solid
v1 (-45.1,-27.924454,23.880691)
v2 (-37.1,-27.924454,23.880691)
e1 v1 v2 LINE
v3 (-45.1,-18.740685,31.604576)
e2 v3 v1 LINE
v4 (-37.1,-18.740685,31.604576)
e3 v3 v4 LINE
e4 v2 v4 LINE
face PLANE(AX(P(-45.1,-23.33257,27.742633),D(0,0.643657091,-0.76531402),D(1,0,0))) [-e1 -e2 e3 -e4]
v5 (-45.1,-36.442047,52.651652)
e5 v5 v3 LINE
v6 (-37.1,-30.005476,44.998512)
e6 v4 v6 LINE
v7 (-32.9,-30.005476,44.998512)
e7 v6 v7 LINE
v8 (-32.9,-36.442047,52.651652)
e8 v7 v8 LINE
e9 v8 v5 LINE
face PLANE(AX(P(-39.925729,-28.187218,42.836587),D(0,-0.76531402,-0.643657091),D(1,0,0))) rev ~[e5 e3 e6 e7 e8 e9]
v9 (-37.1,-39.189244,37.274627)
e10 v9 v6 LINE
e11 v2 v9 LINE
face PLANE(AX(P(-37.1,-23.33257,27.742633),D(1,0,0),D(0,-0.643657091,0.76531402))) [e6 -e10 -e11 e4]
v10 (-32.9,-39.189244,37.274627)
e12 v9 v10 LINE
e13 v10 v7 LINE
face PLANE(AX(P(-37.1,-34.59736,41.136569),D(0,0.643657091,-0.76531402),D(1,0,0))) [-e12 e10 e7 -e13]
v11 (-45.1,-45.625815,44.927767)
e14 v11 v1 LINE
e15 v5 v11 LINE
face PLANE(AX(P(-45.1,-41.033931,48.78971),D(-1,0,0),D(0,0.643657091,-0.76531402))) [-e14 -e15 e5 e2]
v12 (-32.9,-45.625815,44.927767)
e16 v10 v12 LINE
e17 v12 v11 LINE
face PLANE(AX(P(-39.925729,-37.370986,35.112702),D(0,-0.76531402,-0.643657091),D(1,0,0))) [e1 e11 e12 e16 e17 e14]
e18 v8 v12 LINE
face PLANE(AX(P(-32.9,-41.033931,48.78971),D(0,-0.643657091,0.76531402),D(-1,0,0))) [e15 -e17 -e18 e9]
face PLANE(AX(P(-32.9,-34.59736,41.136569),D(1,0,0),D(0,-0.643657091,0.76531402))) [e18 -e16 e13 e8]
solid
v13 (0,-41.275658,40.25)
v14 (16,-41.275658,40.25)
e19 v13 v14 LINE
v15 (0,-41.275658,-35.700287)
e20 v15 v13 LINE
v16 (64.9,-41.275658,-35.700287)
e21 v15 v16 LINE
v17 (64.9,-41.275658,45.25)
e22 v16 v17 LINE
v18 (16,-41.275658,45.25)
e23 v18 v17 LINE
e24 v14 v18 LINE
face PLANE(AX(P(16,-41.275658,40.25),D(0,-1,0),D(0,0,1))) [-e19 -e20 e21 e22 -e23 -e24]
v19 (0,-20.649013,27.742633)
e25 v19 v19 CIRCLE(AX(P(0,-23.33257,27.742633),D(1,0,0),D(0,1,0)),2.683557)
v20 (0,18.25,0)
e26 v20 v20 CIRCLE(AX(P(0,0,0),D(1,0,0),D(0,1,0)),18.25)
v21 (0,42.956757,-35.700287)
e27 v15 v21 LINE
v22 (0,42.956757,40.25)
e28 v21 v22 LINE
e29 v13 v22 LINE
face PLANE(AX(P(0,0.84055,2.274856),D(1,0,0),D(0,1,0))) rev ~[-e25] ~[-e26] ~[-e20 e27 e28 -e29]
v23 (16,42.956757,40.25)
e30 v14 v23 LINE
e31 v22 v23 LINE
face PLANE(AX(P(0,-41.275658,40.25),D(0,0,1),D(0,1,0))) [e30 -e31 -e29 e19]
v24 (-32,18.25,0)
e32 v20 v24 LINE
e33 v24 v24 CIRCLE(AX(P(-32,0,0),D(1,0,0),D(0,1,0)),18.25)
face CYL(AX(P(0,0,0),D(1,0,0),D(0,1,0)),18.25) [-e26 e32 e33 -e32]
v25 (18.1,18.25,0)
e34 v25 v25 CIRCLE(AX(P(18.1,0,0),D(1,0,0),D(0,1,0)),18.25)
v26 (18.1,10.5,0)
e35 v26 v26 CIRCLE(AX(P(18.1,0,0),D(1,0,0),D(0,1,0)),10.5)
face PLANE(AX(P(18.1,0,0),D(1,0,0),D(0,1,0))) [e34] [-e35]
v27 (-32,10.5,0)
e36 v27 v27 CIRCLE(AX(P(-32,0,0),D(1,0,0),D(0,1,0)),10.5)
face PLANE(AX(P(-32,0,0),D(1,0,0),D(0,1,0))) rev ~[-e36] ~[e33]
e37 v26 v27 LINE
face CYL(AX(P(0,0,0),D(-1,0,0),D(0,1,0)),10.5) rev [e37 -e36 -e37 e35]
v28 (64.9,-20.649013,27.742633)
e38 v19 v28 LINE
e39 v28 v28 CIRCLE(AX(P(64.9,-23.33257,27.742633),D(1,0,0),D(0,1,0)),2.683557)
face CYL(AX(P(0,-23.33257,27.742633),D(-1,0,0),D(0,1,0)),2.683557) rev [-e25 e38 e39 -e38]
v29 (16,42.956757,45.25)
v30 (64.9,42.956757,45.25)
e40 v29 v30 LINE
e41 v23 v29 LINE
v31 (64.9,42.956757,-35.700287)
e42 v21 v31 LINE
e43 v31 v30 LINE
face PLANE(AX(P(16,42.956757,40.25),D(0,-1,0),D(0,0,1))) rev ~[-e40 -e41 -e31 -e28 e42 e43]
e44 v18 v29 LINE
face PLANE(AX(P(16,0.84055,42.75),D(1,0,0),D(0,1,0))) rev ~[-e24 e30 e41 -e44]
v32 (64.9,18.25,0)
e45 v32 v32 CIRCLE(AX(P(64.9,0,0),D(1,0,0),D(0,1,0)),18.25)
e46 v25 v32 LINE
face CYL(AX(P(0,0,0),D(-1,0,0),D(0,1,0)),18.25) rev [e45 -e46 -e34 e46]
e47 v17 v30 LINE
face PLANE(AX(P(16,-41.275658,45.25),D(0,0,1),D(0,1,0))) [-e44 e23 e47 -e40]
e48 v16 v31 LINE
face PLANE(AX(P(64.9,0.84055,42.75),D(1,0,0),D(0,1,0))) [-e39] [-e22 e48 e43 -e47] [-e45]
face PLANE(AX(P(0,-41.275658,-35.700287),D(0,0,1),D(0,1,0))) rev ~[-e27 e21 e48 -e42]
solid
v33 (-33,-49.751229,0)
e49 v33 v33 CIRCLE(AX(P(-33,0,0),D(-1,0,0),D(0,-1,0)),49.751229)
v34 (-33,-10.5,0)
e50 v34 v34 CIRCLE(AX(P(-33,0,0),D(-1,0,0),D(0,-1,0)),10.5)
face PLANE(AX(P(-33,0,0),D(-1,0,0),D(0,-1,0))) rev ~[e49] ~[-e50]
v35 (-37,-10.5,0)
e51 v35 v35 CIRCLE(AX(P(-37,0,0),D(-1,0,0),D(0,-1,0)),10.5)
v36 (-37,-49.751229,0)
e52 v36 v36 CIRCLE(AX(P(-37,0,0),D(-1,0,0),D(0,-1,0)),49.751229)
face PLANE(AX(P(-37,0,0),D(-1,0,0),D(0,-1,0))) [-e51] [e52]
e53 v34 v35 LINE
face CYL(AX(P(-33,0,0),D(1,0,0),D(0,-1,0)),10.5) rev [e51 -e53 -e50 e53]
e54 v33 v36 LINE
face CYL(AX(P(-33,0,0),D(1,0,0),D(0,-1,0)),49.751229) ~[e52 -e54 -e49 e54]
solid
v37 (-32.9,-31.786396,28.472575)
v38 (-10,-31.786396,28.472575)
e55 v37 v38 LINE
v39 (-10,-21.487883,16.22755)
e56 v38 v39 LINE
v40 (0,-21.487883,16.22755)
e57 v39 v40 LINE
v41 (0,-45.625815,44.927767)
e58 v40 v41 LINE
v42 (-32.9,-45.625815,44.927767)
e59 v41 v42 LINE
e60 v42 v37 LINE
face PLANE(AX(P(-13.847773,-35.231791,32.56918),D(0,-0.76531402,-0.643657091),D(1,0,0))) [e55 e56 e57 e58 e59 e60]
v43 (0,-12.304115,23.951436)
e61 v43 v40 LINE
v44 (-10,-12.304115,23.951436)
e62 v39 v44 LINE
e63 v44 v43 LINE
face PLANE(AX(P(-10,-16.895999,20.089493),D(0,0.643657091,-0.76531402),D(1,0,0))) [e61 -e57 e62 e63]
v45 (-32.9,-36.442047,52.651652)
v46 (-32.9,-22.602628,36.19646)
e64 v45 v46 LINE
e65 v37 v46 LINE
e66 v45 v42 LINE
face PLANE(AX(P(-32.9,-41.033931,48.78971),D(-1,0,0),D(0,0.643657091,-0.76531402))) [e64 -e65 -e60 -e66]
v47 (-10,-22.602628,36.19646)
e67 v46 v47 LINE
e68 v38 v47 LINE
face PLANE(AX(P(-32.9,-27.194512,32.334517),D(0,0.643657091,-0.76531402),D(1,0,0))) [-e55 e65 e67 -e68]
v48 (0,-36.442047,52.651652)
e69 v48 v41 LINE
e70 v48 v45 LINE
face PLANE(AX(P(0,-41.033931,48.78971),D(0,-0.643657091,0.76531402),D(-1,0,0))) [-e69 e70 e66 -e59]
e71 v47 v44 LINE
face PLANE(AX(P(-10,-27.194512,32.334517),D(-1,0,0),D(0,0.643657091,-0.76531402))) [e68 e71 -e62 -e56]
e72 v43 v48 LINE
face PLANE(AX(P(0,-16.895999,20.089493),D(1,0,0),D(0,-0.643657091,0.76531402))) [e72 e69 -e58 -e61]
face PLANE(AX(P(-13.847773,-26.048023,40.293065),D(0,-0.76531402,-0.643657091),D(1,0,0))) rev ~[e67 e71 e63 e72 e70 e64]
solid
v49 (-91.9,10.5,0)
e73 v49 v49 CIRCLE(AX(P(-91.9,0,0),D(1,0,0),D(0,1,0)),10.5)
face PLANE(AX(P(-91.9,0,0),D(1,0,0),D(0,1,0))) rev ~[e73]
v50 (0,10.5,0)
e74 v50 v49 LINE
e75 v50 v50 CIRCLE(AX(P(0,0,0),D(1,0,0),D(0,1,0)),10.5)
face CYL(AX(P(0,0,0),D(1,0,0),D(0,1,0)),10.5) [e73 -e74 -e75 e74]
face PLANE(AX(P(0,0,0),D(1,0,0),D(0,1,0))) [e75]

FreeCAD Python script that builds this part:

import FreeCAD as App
import Part
import Sketcher

V = App.Vector
Q = App.Units.Quantity


def add_polygon(sketch, points):
    """Adds a closed chain of lines whose ends are joined by coincident constraints."""
    first, n = sketch.GeometryCount, len(points)
    for a, b in zip(points, points[1:] + points[:1]):
        sketch.addGeometry(Part.LineSegment(App.Vector(*a, 0), App.Vector(*b, 0)), False)
    for i in range(n):
        sketch.addConstraint(Sketcher.Constraint("Coincident", first + i, 2, first + (i + 1) % n, 1))

doc = App.newDocument("Part")
params = doc.addObject("Spreadsheet::Sheet", "Params")
for row, (alias, value) in enumerate([
    ("sketch1_diameter", "36.5 mm"),
    ("pad1_length", "64.9 mm"),
    ("sketch2_height", "5 mm"),
    ("pad2_length", "48.9 mm"),
    ("sketch3_diameter", "21 mm"),
    ("sketch3_diameter2", "36.5 mm"),
    ("pad3_length", "32 mm"),
    ("pad3_length2", "18.1 mm"),
    ("sketch4_diameter", "21 mm"),
    ("pad4_length", "91.9 mm"),
    ("sketch5_diameter", "21 mm"),
    ("pad5_length", "4 mm"),
    ("sketch6_width", "10 mm"),
    ("sketch6_height", "16 mm"),
    ("sketch6_width2", "32.9 mm"),
    ("pad6_length", "12 mm"),
    ("sketch7_width", "8 mm"),
    ("sketch7_height", "10 mm"),
    ("sketch7_width2", "12.2 mm"),
    ("pad7_length", "12 mm"),
], start=1):
    params.set(f"A{row}", alias)
    params.set(f"B{row}", "=" + value)
    params.setAlias(f"B{row}", alias)

body = doc.addObject("PartDesign::Body", "Body")

sketch1 = body.newObject("Sketcher::SketchObject", "Sketch")
sketch1.AttachmentSupport = (doc.getObject("YZ_Plane"), [""])
sketch1.MapMode = "FlatFace"
add_polygon(sketch1, [(-41.3, 40.2), (-41.3, -35.7), (43, -35.7), (43, 40.2)])
sketch1.addGeometry(Part.Circle(V(0, 0, 0), V(0, 0, 1), 18.2), False)
sketch1.addGeometry(Part.Circle(V(-23.3, 27.7, 0), V(0, 0, 1), 2.7), False)
sketch1.addConstraint(Sketcher.Constraint("Vertical", 0))
sketch1.addConstraint(Sketcher.Constraint("Horizontal", 1))
sketch1.addConstraint(Sketcher.Constraint("Vertical", 2))
sketch1.addConstraint(Sketcher.Constraint("Horizontal", 3))
sketch1.addConstraint(Sketcher.Constraint("Coincident", 4, 3, -1, 1))
sketch1.addConstraint(Sketcher.Constraint("Diameter", 4, Q("36.5 mm")))
sketch1.addConstraint(Sketcher.Constraint("DistanceY", -1, 1, 2, 2, Q("40.25 mm")))
sketch1.addConstraint(Sketcher.Constraint("Diameter", 5, Q("5.367113 mm")))
sketch1.addConstraint(Sketcher.Constraint("DistanceX", 1, 1, 1, 2, Q("84.232415 mm")))
sketch1.addConstraint(Sketcher.Constraint("DistanceY", 0, 2, 0, 1, Q("75.950287 mm")))
sketch1.addConstraint(Sketcher.Constraint("DistanceX", 5, 3, -1, 1, Q("23.33257 mm")))
sketch1.addConstraint(Sketcher.Constraint("DistanceX", 0, 2, 5, 3, Q("17.943088 mm")))
sketch1.addConstraint(Sketcher.Constraint("DistanceY", 0, 2, 5, 3, Q("63.442921 mm")))
sketch1.setExpression("Constraints[9]", "Params.sketch1_diameter")
pad1 = body.newObject("PartDesign::Pad", "Pad")
pad1.Profile = sketch1
pad1.setExpression("Length", "Params.pad1_length")

sketch2 = body.newObject("Sketcher::SketchObject", "Sketch001")
sketch2.AttachmentSupport = (doc.getObject("YZ_Plane"), [""])
sketch2.MapMode = "FlatFace"
sketch2.AttachmentOffset = App.Placement(V(0, 0, 16), App.Rotation())
add_polygon(sketch2, [(-41, 45), (-41, 40), (43, 40), (43, 45)])
sketch2.addConstraint(Sketcher.Constraint("Vertical", 0))
sketch2.addConstraint(Sketcher.Constraint("Horizontal", 1))
sketch2.addConstraint(Sketcher.Constraint("Vertical", 2))
sketch2.addConstraint(Sketcher.Constraint("Horizontal", 3))
sketch2.addConstraint(Sketcher.Constraint("DistanceY", 0, 2, 0, 1, Q("5 mm")))
sketch2.addConstraint(Sketcher.Constraint("DistanceY", -1, 1, 0, 2, Q("40.25 mm")))
sketch2.addConstraint(Sketcher.Constraint("DistanceX", 1, 1, 1, 2, Q("84.232415 mm")))
sketch2.addConstraint(Sketcher.Constraint("DistanceX", 0, 2, -1, 1, Q("41.275658 mm")))
sketch2.setExpression("Constraints[8]", "Params.sketch2_height")
pad2 = body.newObject("PartDesign::Pad", "Pad001")
pad2.Profile = sketch2
pad2.setExpression("Length", "Params.pad2_length")

sketch3 = body.newObject("Sketcher::SketchObject", "Sketch002")
sketch3.AttachmentSupport = (doc.getObject("YZ_Plane"), [""])
sketch3.MapMode = "FlatFace"
sketch3.addGeometry(Part.Circle(V(0, 0, 0), V(0, 0, 1), 18), False)
sketch3.addGeometry(Part.Circle(V(0, 0, 0), V(0, 0, 1), 10), False)
sketch3.addConstraint(Sketcher.Constraint("Coincident", 0, 3, -1, 1))
sketch3.addConstraint(Sketcher.Constraint("Coincident", 1, 3, -1, 1))
sketch3.addConstraint(Sketcher.Constraint("Diameter", 1, Q("21 mm")))
sketch3.addConstraint(Sketcher.Constraint("Diameter", 0, Q("36.5 mm")))
sketch3.setExpression("Constraints[2]", "Params.sketch3_diameter")
sketch3.setExpression("Constraints[3]", "Params.sketch3_diameter2")
pad3 = body.newObject("PartDesign::Pad", "Pad002")
pad3.Profile = sketch3
pad3.Type = "TwoLengths"
pad3.setExpression("Length", "Params.pad3_length")
pad3.setExpression("Length2", "Params.pad3_length2")
pad3.Reversed = True
body2 = doc.addObject("PartDesign::Body", "Body001")

sketch4 = body2.newObject("Sketcher::SketchObject", "Sketch003")
sketch4.AttachmentSupport = (doc.getObject("YZ_Plane001"), [""])
sketch4.MapMode = "FlatFace"
sketch4.addGeometry(Part.Circle(V(0, 0, 0), V(0, 0, 1), 10), False)
sketch4.addConstraint(Sketcher.Constraint("Coincident", 0, 3, -1, 1))
sketch4.addConstraint(Sketcher.Constraint("Diameter", 0, Q("21 mm")))
sketch4.setExpression("Constraints[1]", "Params.sketch4_diameter")
pad4 = body2.newObject("PartDesign::Pad", "Pad003")
pad4.Profile = sketch4
pad4.setExpression("Length", "Params.pad4_length")
pad4.Reversed = True
body3 = doc.addObject("PartDesign::Body", "Body002")

sketch5 = body3.newObject("Sketcher::SketchObject", "Sketch004")
sketch5.AttachmentSupport = (doc.getObject("YZ_Plane002"), [""])
sketch5.MapMode = "FlatFace"
sketch5.AttachmentOffset = App.Placement(V(0, 0, -33), App.Rotation())
sketch5.addGeometry(Part.Circle(V(0, 0, 0), V(0, 0, 1), 50), False)
sketch5.addGeometry(Part.Circle(V(0, 0, 0), V(0, 0, 1), 10), False)
sketch5.addConstraint(Sketcher.Constraint("Coincident", 0, 3, -1, 1))
sketch5.addConstraint(Sketcher.Constraint("Coincident", 1, 3, -1, 1))
sketch5.addConstraint(Sketcher.Constraint("Diameter", 1, Q("21 mm")))
sketch5.addConstraint(Sketcher.Constraint("Diameter", 0, Q("99.502459 mm")))
sketch5.setExpression("Constraints[2]", "Params.sketch5_diameter")
pad5 = body3.newObject("PartDesign::Pad", "Pad004")
pad5.Profile = sketch5
pad5.setExpression("Length", "Params.pad5_length")
pad5.Reversed = True
body4 = doc.addObject("PartDesign::Body", "Body003")

sketch6 = body4.newObject("Sketcher::SketchObject", "Sketch005")
sketch6.Placement = App.Placement(V(0, 0, 0), App.Rotation(V(1, 0, 0), V(0, -0.643657091, 0.76531402), V(0, -0.76531402, -0.643657091), "ZXY"))
add_polygon(sketch6, [(-10, 26), (0, 26), (0, 64), (-33, 64), (-33, 42), (-10, 42)])
sketch6.addConstraint(Sketcher.Constraint("Horizontal", 0))
sketch6.addConstraint(Sketcher.Constraint("Vertical", 1))
sketch6.addConstraint(Sketcher.Constraint("Horizontal", 2))
sketch6.addConstraint(Sketcher.Constraint("Vertical", 3))
sketch6.addConstraint(Sketcher.Constraint("Horizontal", 4))
sketch6.addConstraint(Sketcher.Constraint("Vertical", 5))
sketch6.addConstraint(Sketcher.Constraint("PointOnObject", 0, 2, -2))
sketch6.addConstraint(Sketcher.Constraint("DistanceX", 0, 1, 0, 2, Q("10 mm")))
sketch6.addConstraint(Sketcher.Constraint("DistanceY", 5, 2, 5, 1, Q("16 mm")))
sketch6.addConstraint(Sketcher.Constraint("DistanceX", 2, 2, 2, 1, Q("32.9 mm")))
sketch6.addConstraint(Sketcher.Constraint("DistanceY", -1, 1, 0, 2, Q("26.25 mm")))
sketch6.addConstraint(Sketcher.Constraint("DistanceY", 1, 1, 1, 2, Q("37.501229 mm")))
sketch6.setExpression("Constraints[13]", "Params.sketch6_width")
sketch6.setExpression("Constraints[14]", "Params.sketch6_height")
sketch6.setExpression("Constraints[15]", "Params.sketch6_width2")
pad6 = body4.newObject("PartDesign::Pad", "Pad005")
pad6.Profile = sketch6
pad6.setExpression("Length", "Params.pad6_length")
pad6.Midplane = True
body5 = doc.addObject("PartDesign::Body", "Body004")

sketch7 = body5.newObject("Sketcher::SketchObject", "Sketch006")
sketch7.Placement = App.Placement(V(0, 0, 0), App.Rotation(V(1, 0, 0), V(0, -0.643657091, 0.76531402), V(0, -0.76531402, -0.643657091), "ZXY"))
add_polygon(sketch7, [(-32.9, 53.8), (-32.9, 63.8), (-45.1, 63.8), (-45.1, 36.2), (-37.1, 36.2), (-37.1, 53.8)])
sketch7.addConstraint(Sketcher.Constraint("Vertical", 0))
sketch7.addConstraint(Sketcher.Constraint("Horizontal", 1))
sketch7.addConstraint(Sketcher.Constraint("Vertical", 2))
sketch7.addConstraint(Sketcher.Constraint("Horizontal", 3))
sketch7.addConstraint(Sketcher.Constraint("Vertical", 4))
sketch7.addConstraint(Sketcher.Constraint("Horizontal", 5))
sketch7.addConstraint(Sketcher.Constraint("DistanceX", 3, 1, 3, 2, Q("8 mm")))
sketch7.addConstraint(Sketcher.Constraint("DistanceY", 0, 1, 0, 2, Q("10 mm")))
sketch7.addConstraint(Sketcher.Constraint("DistanceX", 1, 2, 1, 1, Q("12.2 mm")))
sketch7.addConstraint(Sketcher.Constraint("DistanceX", 0, 2, -1, 1, Q("32.9 mm")))
sketch7.addConstraint(Sketcher.Constraint("DistanceY", -1, 1, 2, 2, Q("36.25 mm")))
sketch7.addConstraint(Sketcher.Constraint("DistanceY", 2, 2, 2, 1, Q("27.501229 mm")))
sketch7.setExpression("Constraints[12]", "Params.sketch7_width")
sketch7.setExpression("Constraints[13]", "Params.sketch7_height")
sketch7.setExpression("Constraints[14]", "Params.sketch7_width2")
pad7 = body5.newObject("PartDesign::Pad", "Pad006")
pad7.Profile = sketch7
pad7.setExpression("Length", "Params.pad7_length")
pad7.Midplane = True

doc.recompute()
